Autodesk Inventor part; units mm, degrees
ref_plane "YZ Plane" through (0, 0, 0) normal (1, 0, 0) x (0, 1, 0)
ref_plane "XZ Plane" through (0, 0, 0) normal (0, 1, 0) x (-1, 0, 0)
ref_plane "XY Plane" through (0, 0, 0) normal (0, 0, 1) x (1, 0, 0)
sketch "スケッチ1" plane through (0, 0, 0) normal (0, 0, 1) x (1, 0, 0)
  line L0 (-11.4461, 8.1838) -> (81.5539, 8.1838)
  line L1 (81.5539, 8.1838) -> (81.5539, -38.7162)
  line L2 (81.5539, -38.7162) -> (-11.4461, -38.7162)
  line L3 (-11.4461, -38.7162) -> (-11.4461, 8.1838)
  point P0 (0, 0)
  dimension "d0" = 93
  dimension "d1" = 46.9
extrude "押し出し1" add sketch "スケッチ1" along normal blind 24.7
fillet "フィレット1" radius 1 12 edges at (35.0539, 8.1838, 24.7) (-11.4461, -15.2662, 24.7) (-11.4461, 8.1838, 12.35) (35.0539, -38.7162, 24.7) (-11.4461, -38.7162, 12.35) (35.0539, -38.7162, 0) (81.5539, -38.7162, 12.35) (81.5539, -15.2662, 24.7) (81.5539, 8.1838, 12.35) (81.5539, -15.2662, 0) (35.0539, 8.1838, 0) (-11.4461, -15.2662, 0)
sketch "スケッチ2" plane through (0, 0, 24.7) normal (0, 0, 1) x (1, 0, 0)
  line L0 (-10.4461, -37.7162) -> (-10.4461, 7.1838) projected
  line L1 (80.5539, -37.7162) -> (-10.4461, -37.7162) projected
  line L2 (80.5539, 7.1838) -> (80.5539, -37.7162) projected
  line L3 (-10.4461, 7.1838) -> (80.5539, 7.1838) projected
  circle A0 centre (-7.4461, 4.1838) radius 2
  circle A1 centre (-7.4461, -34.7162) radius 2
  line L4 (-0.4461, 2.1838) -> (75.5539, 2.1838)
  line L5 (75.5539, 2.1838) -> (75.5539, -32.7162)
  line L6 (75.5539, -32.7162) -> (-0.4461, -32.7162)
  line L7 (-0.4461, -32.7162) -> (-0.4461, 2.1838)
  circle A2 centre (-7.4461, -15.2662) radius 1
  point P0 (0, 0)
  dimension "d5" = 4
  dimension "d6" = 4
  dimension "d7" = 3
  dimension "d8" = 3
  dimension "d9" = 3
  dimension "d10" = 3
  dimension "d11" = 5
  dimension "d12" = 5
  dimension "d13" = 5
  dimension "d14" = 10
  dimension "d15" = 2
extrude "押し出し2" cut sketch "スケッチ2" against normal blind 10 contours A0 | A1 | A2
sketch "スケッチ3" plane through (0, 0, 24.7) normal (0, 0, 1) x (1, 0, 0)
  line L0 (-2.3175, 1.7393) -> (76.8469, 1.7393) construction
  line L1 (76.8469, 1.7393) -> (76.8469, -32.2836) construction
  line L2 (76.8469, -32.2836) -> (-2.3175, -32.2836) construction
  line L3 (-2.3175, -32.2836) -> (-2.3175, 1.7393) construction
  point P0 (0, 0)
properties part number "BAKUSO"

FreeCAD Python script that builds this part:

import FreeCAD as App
import Part
import Sketcher

V = App.Vector


def add_polygon(sketch, points):
    """Adds a closed chain of lines whose ends are joined by coincident constraints."""
    first, n = sketch.GeometryCount, len(points)
    for a, b in zip(points, points[1:] + points[:1]):
        sketch.addGeometry(Part.LineSegment(App.Vector(*a, 0), App.Vector(*b, 0)), False)
    for i in range(n):
        sketch.addConstraint(Sketcher.Constraint("Coincident", first + i, 2, first + (i + 1) % n, 1))

doc = App.newDocument("Part")
body = doc.addObject("PartDesign::Body", "Body")

sketch1 = body.newObject("Sketcher::SketchObject", "Sketch")
sketch1.AttachmentSupport = (doc.getObject("XY_Plane"), [""])
sketch1.MapMode = "FlatFace"
add_polygon(sketch1, [(81.5539, 8.1838), (-11.4461, 8.1838), (-11.4461, -38.7162), (81.5539, -38.7162)])
sketch1.addConstraint([
    Sketcher.Constraint("Horizontal", 0),
    Sketcher.Constraint("Vertical", 1),
    Sketcher.Constraint("Horizontal", 2),
    Sketcher.Constraint("Vertical", 3),
    Sketcher.Constraint("DistanceX", 0, 2, 0, 1, 93.0),
    Sketcher.Constraint("DistanceY", 1, 2, 1, 1, 46.9),
    Sketcher.Constraint("DistanceX", 0, 2, -1, 1, 11.446),
    Sketcher.Constraint("DistanceY", -1, 1, 0, 2, 8.1838),
])
pad1 = body.newObject("PartDesign::Pad", "Pad")
pad1.Profile = sketch1
pad1.Length = 24.7
doc.recompute()

fillet = body.newObject("PartDesign::Fillet", "Fillet")
fillet.Base = (pad1, ["Edge1"])
fillet.UseAllEdges = True
fillet.Radius = 1

sketch2 = body.newObject("Sketcher::SketchObject", "Sketch001")
sketch2.AttachmentSupport = (doc.getObject("XY_Plane"), [""])
sketch2.MapMode = "FlatFace"
sketch2.AttachmentOffset = App.Placement(V(0, 0, 24.7), App.Rotation())
sketch2.addGeometry([
    Part.Circle(V(-7.4461, 4.1838, 0), V(0, 0, 1), 2),
    Part.Circle(V(-7.4461, -34.7162, 0), V(0, 0, 1), 2),
    Part.Circle(V(-7.4461, -15.2662, 0), V(0, 0, 1), 1),
], False)
sketch2.addConstraint([
    Sketcher.Constraint("Equal", 0, 1),
    Sketcher.Constraint("Vertical", 0, 3, 1, 3),
    Sketcher.Constraint("Vertical", 1, 3, 2, 3),
    Sketcher.Constraint("Diameter", 0, 4.0),
    Sketcher.Constraint("Diameter", 2, 2.0),
    Sketcher.Constraint("DistanceY", 1, 3, 0, 3, 38.9),
    Sketcher.Constraint("DistanceY", 2, 3, 0, 3, 19.45),
    Sketcher.Constraint("DistanceX", 0, 3, -1, 1, 7.446),
    Sketcher.Constraint("DistanceY", -1, 1, 0, 3, 4.1838),
])
pocket1 = body.newObject("PartDesign::Pocket", "Pocket")
pocket1.Profile = sketch2
pocket1.Length = 10

doc.recompute()
